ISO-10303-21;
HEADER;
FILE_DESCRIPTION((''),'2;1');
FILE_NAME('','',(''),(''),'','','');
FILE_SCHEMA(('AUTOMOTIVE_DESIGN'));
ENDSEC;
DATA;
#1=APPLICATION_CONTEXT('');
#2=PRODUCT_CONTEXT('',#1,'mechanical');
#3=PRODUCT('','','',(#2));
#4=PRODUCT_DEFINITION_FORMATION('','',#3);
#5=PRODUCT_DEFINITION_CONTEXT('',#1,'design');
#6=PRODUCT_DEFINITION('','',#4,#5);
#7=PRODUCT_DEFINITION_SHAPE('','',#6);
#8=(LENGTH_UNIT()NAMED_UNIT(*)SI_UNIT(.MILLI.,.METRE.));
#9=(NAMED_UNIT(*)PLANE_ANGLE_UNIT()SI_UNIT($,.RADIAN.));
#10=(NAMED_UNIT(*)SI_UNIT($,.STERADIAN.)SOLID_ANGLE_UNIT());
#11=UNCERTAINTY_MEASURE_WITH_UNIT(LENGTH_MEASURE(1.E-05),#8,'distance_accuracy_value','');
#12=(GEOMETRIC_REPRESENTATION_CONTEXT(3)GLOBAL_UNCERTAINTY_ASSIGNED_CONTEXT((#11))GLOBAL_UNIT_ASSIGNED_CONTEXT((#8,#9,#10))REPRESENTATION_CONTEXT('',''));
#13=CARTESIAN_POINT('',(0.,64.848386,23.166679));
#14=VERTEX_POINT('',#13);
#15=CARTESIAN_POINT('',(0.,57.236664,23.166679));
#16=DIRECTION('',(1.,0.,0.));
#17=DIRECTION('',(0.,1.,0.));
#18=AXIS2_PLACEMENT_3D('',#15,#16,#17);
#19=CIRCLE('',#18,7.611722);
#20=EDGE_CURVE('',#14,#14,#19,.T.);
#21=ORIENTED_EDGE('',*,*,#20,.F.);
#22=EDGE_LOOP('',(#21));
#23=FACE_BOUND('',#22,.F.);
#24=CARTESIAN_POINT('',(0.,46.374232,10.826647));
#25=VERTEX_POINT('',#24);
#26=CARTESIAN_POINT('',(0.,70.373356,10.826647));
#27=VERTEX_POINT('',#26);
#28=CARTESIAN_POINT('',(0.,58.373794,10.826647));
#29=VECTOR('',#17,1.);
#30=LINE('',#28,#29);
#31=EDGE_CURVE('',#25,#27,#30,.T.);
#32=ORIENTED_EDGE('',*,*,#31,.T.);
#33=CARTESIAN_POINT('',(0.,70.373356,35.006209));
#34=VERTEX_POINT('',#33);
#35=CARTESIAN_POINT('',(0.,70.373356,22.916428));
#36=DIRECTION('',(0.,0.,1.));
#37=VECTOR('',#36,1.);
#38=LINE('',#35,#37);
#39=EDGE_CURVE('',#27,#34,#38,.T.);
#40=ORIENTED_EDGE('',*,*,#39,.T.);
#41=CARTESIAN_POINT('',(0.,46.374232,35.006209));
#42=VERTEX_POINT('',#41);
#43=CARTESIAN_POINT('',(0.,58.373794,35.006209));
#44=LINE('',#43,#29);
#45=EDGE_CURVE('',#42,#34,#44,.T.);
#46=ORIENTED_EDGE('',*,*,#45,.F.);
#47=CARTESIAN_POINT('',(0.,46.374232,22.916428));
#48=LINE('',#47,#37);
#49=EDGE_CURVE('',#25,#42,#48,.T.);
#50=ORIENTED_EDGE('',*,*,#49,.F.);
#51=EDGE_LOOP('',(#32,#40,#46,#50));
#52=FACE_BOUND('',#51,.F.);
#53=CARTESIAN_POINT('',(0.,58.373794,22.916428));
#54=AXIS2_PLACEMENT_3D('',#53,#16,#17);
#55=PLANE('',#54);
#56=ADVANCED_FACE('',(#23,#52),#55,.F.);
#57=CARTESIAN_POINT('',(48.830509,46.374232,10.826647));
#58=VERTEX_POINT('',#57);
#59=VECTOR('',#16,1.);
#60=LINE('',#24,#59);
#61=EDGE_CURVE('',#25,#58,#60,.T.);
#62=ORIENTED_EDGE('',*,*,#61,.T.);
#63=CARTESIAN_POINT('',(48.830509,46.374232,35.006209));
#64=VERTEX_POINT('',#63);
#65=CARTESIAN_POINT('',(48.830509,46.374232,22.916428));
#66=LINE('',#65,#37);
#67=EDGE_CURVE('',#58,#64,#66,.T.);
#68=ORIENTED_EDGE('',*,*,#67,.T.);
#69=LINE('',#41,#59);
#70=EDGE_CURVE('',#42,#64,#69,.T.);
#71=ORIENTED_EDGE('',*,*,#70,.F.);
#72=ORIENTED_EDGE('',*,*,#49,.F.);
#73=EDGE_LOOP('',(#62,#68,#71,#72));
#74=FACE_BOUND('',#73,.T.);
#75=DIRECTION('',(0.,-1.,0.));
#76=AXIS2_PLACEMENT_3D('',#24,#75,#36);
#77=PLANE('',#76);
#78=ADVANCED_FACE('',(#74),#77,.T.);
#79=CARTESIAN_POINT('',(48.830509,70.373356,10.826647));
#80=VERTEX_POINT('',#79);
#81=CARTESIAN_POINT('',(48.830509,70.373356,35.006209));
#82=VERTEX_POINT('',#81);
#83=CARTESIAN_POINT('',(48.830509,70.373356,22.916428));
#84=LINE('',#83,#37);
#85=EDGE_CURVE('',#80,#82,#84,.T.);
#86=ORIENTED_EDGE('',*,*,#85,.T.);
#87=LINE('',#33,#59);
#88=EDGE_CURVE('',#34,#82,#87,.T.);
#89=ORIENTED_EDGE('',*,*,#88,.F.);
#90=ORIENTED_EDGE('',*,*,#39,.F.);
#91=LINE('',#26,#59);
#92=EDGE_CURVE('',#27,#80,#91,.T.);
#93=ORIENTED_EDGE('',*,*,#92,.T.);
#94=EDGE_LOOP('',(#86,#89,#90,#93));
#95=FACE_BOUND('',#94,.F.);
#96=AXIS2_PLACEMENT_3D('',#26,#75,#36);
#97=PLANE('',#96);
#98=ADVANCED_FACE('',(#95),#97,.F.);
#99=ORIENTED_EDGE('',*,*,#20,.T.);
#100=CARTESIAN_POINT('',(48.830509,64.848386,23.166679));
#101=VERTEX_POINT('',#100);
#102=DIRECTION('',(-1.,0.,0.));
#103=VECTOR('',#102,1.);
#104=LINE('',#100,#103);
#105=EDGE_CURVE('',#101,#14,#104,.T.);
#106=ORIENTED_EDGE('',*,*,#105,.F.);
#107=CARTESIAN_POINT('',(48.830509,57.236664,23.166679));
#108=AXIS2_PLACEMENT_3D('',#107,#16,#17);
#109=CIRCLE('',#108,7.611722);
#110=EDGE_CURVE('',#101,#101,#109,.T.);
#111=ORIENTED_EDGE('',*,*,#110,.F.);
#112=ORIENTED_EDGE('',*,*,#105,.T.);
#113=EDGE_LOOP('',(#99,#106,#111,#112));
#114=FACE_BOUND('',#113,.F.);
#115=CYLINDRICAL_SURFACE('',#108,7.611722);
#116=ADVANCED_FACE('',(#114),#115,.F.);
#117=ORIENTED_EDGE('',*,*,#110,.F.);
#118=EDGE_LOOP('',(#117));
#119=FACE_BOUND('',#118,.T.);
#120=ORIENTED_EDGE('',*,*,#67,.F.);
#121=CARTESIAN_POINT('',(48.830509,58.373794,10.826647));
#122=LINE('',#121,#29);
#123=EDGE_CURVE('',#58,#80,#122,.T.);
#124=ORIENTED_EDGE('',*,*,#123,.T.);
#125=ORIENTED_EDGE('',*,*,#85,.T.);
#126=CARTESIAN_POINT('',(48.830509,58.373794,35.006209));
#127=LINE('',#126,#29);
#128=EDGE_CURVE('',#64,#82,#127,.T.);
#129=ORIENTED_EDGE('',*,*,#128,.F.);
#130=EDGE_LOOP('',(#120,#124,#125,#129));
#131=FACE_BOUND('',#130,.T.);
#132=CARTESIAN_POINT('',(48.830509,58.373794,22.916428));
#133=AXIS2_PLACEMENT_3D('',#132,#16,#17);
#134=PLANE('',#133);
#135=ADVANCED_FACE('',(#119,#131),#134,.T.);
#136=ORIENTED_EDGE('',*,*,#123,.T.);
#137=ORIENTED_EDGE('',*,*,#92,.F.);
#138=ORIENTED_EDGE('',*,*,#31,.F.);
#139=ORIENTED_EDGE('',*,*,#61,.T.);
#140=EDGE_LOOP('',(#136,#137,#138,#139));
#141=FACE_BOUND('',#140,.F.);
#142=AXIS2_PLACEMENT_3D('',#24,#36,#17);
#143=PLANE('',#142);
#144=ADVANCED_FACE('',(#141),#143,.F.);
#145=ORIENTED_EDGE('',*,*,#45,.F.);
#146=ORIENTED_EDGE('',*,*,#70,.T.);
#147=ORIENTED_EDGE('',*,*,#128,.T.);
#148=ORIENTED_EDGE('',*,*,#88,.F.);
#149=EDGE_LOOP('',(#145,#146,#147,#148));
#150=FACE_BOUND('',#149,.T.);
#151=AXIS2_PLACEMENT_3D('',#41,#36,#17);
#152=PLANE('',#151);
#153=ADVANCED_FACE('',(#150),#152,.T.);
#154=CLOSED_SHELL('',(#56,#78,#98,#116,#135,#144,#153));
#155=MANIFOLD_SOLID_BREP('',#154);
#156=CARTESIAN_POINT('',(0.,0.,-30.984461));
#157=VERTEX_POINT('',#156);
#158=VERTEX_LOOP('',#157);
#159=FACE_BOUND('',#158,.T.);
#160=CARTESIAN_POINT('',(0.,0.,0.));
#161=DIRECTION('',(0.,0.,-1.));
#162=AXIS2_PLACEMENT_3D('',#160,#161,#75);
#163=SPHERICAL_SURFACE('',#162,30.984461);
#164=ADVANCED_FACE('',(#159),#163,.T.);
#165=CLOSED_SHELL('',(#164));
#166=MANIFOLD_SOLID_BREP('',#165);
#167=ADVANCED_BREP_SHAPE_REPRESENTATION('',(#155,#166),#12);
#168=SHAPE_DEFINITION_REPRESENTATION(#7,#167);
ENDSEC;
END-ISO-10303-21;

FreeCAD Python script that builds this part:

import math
import FreeCAD as App
import Part
import Sketcher

doc = App.newDocument("Part")
body = doc.addObject("PartDesign::Body", "Body")

# Sketch on YZ plane
sketch1 = body.newObject("Sketcher::SketchObject", "Sketch")
sketch1.AttachmentSupport = (doc.getObject("YZ_Plane"), [""])
sketch1.MapMode = "FlatFace"
sketch1.addGeometry([
    Part.LineSegment(App.Vector(0, -31, 0), App.Vector(0, 31, 0)),
    Part.ArcOfCircle(Part.Circle(App.Vector(0, 0, 0), App.Vector(0, 0, 1), 31), math.radians(90), math.radians(270)),
], False)
sketch1.addConstraint([
    Sketcher.Constraint("Coincident", 0, 1, 1, 2),
    Sketcher.Constraint("Coincident", 1, 1, 0, 2),
    Sketcher.Constraint("Vertical", 0),
    Sketcher.Constraint("Coincident", 1, 3, -1, 1),
    Sketcher.Constraint("PointOnObject", 0, 1, -2),
    Sketcher.Constraint("Radius", 1, 30.984461),
])
revolution = body.newObject("PartDesign::Revolution", "Revolution")
revolution.Profile = sketch1
revolution.ReferenceAxis = (sketch1, ["V_Axis"])
revolution.Angle = 360
body2 = doc.addObject("PartDesign::Body", "Body001")

# Sketch on YZ plane
sketch2 = body2.newObject("Sketcher::SketchObject", "Sketch001")
sketch2.AttachmentSupport = (doc.getObject("YZ_Plane001"), [""])
sketch2.MapMode = "FlatFace"
sketch2.addGeometry([
    Part.LineSegment(App.Vector(46, 35, 0), App.Vector(46, 11, 0)),
    Part.LineSegment(App.Vector(46, 11, 0), App.Vector(70, 11, 0)),
    Part.LineSegment(App.Vector(70, 11, 0), App.Vector(70, 35, 0)),
    Part.LineSegment(App.Vector(70, 35, 0), App.Vector(46, 35, 0)),
], False)
sketch2.addConstraint([
    Sketcher.Constraint("Coincident", 0, 2, 1, 1),
    Sketcher.Constraint("Coincident", 1, 2, 2, 1),
    Sketcher.Constraint("Coincident", 2, 2, 3, 1),
    Sketcher.Constraint("Coincident", 3, 2, 0, 1),
    Sketcher.Constraint("Vertical", 0),
    Sketcher.Constraint("Horizontal", 1),
    Sketcher.Constraint("Vertical", 2),
    Sketcher.Constraint("Horizontal", 3),
    Sketcher.Constraint("DistanceX", 1, 1, 1, 2, 23.999124),
    Sketcher.Constraint("DistanceY", 0, 2, 0, 1, 24.179563),
    Sketcher.Constraint("DistanceY", -1, 1, 2, 2, 35.006209),
    Sketcher.Constraint("DistanceX", -1, 1, 0, 2, 46.374232),
])
pad1 = body2.newObject("PartDesign::Pad", "Pad")
pad1.Profile = sketch2
pad1.Length = 48.830509

# Sketch on YZ plane
sketch3 = body2.newObject("Sketcher::SketchObject", "Sketch002")
sketch3.AttachmentSupport = (doc.getObject("YZ_Plane001"), [""])
sketch3.MapMode = "FlatFace"
sketch3.AttachmentOffset = App.Placement(App.Vector(0, 0, 48.830509), App.Rotation())
sketch3.addGeometry(Part.Circle(App.Vector(57, 23, 0), App.Vector(0, 0, 1), 8), False)
sketch3.addConstraint([
    Sketcher.Constraint("Diameter", 0, 15.223444),
    Sketcher.Constraint("DistanceY", -1, 1, 0, 3, 23.166679),
    Sketcher.Constraint("DistanceX", -1, 1, 0, 3, 57.236664),
])
pocket1 = body2.newObject("PartDesign::Pocket", "Pocket")
pocket1.Profile = sketch3
pocket1.Length = 71.608588

doc.recompute()
